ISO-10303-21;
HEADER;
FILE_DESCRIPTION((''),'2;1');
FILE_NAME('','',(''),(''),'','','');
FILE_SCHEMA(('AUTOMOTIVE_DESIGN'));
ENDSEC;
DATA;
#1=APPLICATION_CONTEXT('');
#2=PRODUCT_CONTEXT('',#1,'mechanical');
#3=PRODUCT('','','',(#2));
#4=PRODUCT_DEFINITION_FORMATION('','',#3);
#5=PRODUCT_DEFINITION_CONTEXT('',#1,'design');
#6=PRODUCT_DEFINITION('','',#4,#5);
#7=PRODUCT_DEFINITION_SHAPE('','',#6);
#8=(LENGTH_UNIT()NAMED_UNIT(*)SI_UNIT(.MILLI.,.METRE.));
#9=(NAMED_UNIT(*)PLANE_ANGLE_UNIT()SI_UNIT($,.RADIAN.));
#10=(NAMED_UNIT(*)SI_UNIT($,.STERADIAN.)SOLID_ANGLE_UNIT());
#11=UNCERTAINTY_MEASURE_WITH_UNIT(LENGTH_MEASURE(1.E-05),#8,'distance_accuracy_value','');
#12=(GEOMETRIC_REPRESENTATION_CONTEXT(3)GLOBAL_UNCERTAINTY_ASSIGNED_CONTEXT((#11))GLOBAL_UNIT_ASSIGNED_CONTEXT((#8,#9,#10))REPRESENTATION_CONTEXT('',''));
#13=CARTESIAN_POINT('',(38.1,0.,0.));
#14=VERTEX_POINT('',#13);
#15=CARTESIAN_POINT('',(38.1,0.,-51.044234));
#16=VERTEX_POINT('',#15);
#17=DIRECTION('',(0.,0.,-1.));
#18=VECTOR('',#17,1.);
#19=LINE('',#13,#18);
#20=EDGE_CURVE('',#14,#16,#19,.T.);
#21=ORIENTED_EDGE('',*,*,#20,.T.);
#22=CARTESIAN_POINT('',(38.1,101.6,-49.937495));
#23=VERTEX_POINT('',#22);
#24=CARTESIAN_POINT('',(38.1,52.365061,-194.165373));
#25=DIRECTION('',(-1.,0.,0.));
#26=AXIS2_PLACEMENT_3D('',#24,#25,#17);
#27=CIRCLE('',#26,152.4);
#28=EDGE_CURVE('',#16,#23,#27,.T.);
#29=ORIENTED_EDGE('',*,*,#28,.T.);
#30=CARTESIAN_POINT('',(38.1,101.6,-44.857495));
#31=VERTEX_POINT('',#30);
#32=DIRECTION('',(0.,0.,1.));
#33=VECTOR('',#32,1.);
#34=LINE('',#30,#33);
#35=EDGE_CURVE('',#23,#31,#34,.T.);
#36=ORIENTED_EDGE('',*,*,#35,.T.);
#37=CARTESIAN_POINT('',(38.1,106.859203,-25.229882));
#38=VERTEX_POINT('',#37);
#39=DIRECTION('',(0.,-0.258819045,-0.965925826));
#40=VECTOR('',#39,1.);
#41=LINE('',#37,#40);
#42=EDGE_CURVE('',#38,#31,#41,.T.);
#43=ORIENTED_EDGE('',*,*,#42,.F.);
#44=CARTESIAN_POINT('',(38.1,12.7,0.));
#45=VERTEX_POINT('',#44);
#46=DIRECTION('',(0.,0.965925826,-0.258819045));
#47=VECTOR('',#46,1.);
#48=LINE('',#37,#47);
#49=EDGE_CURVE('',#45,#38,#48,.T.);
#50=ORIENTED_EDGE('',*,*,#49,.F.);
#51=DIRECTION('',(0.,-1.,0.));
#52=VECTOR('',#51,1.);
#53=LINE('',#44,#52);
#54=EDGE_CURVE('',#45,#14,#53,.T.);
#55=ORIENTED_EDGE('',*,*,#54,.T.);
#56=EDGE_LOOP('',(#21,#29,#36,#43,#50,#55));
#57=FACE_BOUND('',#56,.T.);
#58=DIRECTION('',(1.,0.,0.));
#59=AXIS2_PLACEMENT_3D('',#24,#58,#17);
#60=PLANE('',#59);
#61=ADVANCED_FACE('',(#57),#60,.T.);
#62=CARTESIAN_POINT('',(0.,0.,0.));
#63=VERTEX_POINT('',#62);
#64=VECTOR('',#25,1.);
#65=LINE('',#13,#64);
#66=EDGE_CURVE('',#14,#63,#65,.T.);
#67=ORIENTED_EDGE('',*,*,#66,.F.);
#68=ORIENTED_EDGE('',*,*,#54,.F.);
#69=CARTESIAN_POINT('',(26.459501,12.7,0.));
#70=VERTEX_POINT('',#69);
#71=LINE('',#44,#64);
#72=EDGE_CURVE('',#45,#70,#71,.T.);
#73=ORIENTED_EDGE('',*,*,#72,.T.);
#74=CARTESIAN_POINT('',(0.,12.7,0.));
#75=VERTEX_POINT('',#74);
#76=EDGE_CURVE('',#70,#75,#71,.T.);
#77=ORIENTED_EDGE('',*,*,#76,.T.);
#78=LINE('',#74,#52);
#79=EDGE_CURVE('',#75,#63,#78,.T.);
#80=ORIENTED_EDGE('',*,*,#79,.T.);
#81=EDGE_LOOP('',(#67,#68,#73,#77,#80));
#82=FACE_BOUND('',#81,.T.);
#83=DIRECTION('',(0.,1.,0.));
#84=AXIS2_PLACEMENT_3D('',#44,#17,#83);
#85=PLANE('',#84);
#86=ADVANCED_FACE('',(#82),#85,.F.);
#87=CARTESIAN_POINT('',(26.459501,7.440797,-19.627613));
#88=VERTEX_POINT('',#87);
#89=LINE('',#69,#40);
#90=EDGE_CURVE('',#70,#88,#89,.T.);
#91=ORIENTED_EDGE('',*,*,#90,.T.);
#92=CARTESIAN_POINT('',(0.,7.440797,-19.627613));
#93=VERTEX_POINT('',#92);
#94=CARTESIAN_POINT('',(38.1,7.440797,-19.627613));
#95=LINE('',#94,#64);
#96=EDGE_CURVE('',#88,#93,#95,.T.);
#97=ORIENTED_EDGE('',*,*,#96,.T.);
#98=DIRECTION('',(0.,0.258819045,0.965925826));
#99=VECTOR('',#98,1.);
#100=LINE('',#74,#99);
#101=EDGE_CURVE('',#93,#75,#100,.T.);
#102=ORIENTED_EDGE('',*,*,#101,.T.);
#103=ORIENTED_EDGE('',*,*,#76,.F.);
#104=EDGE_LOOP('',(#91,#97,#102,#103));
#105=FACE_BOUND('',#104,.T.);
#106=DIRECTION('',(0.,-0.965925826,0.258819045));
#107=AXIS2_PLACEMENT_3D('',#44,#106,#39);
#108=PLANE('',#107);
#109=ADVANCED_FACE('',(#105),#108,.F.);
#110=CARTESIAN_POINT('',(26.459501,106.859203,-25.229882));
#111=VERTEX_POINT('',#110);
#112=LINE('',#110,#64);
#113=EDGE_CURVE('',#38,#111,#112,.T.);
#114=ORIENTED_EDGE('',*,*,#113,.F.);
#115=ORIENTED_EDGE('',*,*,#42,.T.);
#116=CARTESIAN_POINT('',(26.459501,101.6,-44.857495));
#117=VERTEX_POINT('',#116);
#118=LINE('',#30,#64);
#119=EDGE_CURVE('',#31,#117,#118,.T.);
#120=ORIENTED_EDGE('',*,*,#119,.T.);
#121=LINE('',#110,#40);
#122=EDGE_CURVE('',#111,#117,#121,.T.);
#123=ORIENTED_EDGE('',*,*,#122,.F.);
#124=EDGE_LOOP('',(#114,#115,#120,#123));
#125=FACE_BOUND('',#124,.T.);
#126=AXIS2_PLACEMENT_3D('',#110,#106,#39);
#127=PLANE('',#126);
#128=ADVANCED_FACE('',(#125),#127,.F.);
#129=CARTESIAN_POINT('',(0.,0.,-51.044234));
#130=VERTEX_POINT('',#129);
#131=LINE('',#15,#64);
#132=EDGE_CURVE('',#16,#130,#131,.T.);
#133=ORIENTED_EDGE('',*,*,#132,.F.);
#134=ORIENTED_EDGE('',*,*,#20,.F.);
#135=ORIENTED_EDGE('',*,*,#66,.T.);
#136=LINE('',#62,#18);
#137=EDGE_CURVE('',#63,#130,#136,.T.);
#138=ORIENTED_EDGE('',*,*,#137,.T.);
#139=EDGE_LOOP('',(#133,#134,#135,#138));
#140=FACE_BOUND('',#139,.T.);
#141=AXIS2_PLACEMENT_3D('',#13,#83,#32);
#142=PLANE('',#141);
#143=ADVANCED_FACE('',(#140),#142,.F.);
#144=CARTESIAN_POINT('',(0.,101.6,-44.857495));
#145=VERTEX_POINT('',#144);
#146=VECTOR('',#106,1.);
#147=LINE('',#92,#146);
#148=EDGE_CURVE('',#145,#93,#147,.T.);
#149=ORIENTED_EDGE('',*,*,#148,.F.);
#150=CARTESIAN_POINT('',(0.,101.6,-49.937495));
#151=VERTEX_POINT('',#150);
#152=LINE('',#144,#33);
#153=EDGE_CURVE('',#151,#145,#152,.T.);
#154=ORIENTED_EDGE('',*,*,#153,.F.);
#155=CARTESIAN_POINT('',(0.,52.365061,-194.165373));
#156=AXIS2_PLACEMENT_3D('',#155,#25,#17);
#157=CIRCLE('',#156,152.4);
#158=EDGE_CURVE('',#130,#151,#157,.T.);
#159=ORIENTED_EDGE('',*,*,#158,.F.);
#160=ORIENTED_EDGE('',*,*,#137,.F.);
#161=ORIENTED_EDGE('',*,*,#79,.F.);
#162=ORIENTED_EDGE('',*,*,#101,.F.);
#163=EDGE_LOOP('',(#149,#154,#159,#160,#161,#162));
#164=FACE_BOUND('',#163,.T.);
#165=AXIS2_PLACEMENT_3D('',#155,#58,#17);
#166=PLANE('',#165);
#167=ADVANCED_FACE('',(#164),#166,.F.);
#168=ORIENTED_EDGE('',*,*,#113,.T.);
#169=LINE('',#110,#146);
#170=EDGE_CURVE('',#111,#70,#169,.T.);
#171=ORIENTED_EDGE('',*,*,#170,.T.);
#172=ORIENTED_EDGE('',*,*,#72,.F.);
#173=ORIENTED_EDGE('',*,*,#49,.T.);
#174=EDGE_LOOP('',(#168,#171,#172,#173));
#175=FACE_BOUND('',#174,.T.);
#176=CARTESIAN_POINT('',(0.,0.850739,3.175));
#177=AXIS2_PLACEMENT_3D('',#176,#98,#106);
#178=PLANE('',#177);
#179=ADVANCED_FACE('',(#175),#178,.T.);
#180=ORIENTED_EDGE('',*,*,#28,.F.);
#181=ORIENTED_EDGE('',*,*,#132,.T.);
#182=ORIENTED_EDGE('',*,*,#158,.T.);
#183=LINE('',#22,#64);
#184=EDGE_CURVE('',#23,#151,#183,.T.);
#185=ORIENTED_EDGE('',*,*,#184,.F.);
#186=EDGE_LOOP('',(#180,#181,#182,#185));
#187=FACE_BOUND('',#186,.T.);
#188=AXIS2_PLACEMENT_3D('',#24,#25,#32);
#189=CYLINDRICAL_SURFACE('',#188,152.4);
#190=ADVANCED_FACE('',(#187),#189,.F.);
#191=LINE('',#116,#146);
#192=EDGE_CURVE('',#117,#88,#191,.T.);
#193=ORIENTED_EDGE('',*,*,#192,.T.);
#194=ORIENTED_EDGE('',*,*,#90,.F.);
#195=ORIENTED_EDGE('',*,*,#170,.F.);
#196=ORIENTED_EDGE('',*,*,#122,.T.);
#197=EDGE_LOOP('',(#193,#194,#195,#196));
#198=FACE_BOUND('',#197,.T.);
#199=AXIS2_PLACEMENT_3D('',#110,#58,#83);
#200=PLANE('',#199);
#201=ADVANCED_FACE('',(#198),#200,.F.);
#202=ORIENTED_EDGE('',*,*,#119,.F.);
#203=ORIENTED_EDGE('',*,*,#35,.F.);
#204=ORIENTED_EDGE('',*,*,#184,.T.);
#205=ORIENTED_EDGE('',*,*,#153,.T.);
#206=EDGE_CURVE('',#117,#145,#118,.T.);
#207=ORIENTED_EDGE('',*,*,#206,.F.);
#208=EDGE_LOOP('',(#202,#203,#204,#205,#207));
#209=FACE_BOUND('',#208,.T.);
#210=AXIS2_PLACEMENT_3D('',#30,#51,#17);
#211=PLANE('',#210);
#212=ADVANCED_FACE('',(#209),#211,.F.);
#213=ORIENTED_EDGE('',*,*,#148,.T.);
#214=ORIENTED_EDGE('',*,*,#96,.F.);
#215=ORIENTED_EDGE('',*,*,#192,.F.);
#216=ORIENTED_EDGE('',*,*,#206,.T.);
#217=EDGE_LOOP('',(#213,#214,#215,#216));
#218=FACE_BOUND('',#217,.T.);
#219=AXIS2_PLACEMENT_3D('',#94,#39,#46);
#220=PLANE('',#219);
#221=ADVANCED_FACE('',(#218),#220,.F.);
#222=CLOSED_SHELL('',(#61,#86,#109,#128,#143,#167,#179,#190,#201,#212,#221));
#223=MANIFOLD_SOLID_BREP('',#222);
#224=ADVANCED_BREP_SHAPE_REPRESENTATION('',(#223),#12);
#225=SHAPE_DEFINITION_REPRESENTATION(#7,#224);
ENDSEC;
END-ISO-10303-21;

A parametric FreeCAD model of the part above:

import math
import FreeCAD as App
import Part
import Sketcher

V = App.Vector
Q = App.Units.Quantity

doc = App.newDocument("Part")
params = doc.addObject("Spreadsheet::Sheet", "Params")
for row, (alias, value) in enumerate([
    ("sketch1_radius", "6 in"),
    ("sketch1_width", "0.5 in"),
    ("sketch1_height", "0.2 in"),
    ("sketch1_length", "0.8 in"),
    ("pad1_length", "1.5 in"),
    ("pad2_length", "0.8 in"),
], start=1):
    params.set(f"A{row}", alias)
    params.set(f"B{row}", "=" + value)
    params.setAlias(f"B{row}", alias)

body = doc.addObject("PartDesign::Body", "Body")

# Sketch on YZ plane
sketch1 = body.newObject("Sketcher::SketchObject", "Sketch")
sketch1.AttachmentSupport = (doc.getObject("YZ_Plane"), [""])
sketch1.MapMode = "FlatFace"
sketch1.addGeometry([
    Part.LineSegment(V(0, 0, 0), V(0, -51, 0)),  # 0
    Part.ArcOfCircle(Part.Circle(V(52, -194, 0), V(0, 0, 1), 152), math.radians(71), math.radians(110)),  # 1
    Part.LineSegment(V(102, -50, 0), V(102, -45, 0)),  # 2
    Part.LineSegment(V(102, -45, 0), V(7, -20, 0)),  # 3
    Part.LineSegment(V(7, -20, 0), V(13, 0, 0)),  # 4
    Part.LineSegment(V(13, 0, 0), V(0, 0, 0)),  # 5
], False)
sketch1.addConstraint([
    Sketcher.Constraint("Coincident", 0, 2, 1, 2),
    Sketcher.Constraint("Coincident", 1, 1, 2, 1),
    Sketcher.Constraint("Coincident", 2, 2, 3, 1),
    Sketcher.Constraint("Coincident", 3, 2, 4, 1),
    Sketcher.Constraint("Coincident", 4, 2, 5, 1),
    Sketcher.Constraint("Coincident", 5, 2, 0, 1),
    Sketcher.Constraint("Vertical", 0),
    Sketcher.Constraint("Vertical", 2),
    Sketcher.Constraint("Horizontal", 5),
    Sketcher.Constraint("Coincident", 5, 2, -1, 1),
    Sketcher.Constraint("Perpendicular", 3, 4),
    Sketcher.Constraint("Radius", 1, Q("6 in")),
    Sketcher.Constraint("DistanceX", 5, 2, 5, 1, Q("0.5 in")),
    Sketcher.Constraint("DistanceY", 2, 1, 2, 2, Q("0.2 in")),
    Sketcher.Constraint("DistanceX", -1, 1, 1, 1, Q("4 in")),
    Sketcher.Constraint("Angle", 3, Q("165 deg")),
    Sketcher.Constraint("Distance", 4, Q("0.8 in")),
    Sketcher.Constraint("DistanceY", 0, 2, 0, 1, Q("51.044234 mm")),
])
sketch1.setExpression("Constraints[11]", "Params.sketch1_radius")
sketch1.setExpression("Constraints[12]", "Params.sketch1_width")
sketch1.setExpression("Constraints[13]", "Params.sketch1_height")
sketch1.setExpression("Constraints[16]", "Params.sketch1_length")
pad1 = body.newObject("PartDesign::Pad", "Pad")
pad1.Profile = sketch1
pad1.setExpression("Length", "Params.pad1_length")

# Sketch on an angled plane
sketch2 = body.newObject("Sketcher::SketchObject", "Sketch001")
sketch2.Placement = App.Placement(V(0, -4.408464, -16.452613), App.Rotation(V(1, 0, 0), V(0, 0.965925826, -0.258819045), V(0, 0.258819045, 0.965925826), "ZXY"))
sketch2.addGeometry([
    Part.LineSegment(V(26, 110, 0), V(26, 12, 0)),
    Part.LineSegment(V(26, 12, 0), V(38, 12, 0)),
    Part.LineSegment(V(38, 12, 0), V(38, 110, 0)),
    Part.LineSegment(V(38, 110, 0), V(26, 110, 0)),
], False)
sketch2.addConstraint([
    Sketcher.Constraint("Coincident", 0, 2, 1, 1),
    Sketcher.Constraint("Coincident", 1, 2, 2, 1),
    Sketcher.Constraint("Coincident", 2, 2, 3, 1),
    Sketcher.Constraint("Coincident", 3, 2, 0, 1),
    Sketcher.Constraint("Vertical", 0),
    Sketcher.Constraint("Horizontal", 1),
    Sketcher.Constraint("Vertical", 2),
    Sketcher.Constraint("Horizontal", 3),
    Sketcher.Constraint("DistanceX", -1, 1, 1, 2, Q("1.5 in")),
    Sketcher.Constraint("DistanceX", 1, 1, 1, 2, Q("11.640499 mm")),
    Sketcher.Constraint("DistanceY", 0, 2, 0, 1, Q("97.48078 mm")),
    Sketcher.Constraint("DistanceY", -1, 1, 0, 2, Q("12.267258 mm")),
])
pad2 = body.newObject("PartDesign::Pad", "Pad001")
pad2.Profile = sketch2
pad2.setExpression("Length", "Params.pad2_length")

doc.recompute()
